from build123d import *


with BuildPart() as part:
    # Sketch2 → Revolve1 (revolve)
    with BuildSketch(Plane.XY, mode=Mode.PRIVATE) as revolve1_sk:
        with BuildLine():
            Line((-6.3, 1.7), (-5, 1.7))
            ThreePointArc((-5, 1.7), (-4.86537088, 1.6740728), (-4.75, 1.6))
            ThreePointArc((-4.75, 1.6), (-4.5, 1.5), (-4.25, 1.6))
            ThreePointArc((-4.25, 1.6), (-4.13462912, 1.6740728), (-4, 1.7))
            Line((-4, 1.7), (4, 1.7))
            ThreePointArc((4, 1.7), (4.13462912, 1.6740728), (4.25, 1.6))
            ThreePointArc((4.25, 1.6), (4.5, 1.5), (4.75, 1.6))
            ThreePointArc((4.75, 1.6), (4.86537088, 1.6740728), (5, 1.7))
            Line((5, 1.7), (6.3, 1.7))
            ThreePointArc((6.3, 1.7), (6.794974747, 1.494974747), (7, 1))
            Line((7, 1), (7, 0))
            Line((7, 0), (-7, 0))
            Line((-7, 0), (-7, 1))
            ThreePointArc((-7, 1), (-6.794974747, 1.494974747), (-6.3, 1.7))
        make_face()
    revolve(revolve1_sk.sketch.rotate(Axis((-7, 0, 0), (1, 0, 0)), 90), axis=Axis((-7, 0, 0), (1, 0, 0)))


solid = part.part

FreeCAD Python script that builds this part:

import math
import FreeCAD as App
import Part
import Sketcher

V = App.Vector

doc = App.newDocument("Part")
body = doc.addObject("PartDesign::Body", "Body")

sketch1 = body.newObject("Sketcher::SketchObject", "Sketch")
sketch1.AttachmentSupport = (doc.getObject("XY_Plane"), [""])
sketch1.MapMode = "FlatFace"
sketch1.addGeometry(Part.LineSegment(V(-5, 1.7, 0), V(-6.3, 1.7, 0)), False)
sketch1.addGeometry(Part.ArcOfCircle(Part.Circle(V(-6.3, 1, 0), V(0, 0, 1), 0.7), math.radians(90), math.radians(180)), False)
sketch1.addGeometry(Part.LineSegment(V(-7, 1, 0), V(-7, 0, 0)), False)
sketch1.addGeometry(Part.LineSegment(V(-7, 0, 0), V(7, 0, 0)), False)
sketch1.addGeometry(Part.LineSegment(V(7, 0, 0), V(7, 1, 0)), False)
sketch1.addGeometry(Part.ArcOfCircle(Part.Circle(V(6.3, 1, 0), V(0, 0, 1), 0.7), math.radians(0), math.radians(90)), False)
sketch1.addGeometry(Part.LineSegment(V(6.3, 1.7, 0), V(5, 1.7, 0)), False)
sketch1.addGeometry(Part.ArcOfCircle(Part.Circle(V(5, 1.3375, 0), V(0, 0, 1), 0.3625), math.radians(90), math.radians(133.602819)), False)
sketch1.addGeometry(Part.ArcOfCircle(Part.Circle(V(4.5, 1.8625, 0), V(0, 0, 1), 0.3625), math.radians(-133.602819), math.radians(-46.397181)), False)
sketch1.addGeometry(Part.ArcOfCircle(Part.Circle(V(4, 1.3375, 0), V(0, 0, 1), 0.3625), math.radians(46.397181), math.radians(90)), False)
sketch1.addGeometry(Part.LineSegment(V(4, 1.7, 0), V(-4, 1.7, 0)), False)
sketch1.addGeometry(Part.ArcOfCircle(Part.Circle(V(-4, 1.3375, 0), V(0, 0, 1), 0.3625), math.radians(90), math.radians(133.602819)), False)
sketch1.addGeometry(Part.ArcOfCircle(Part.Circle(V(-4.5, 1.8625, 0), V(0, 0, 1), 0.3625), math.radians(-133.602819), math.radians(-46.397181)), False)
sketch1.addGeometry(Part.ArcOfCircle(Part.Circle(V(-5, 1.3375, 0), V(0, 0, 1), 0.3625), math.radians(46.397181), math.radians(90)), False)
sketch1.addConstraint(Sketcher.Constraint("Tangent", 0, 2, 1, 1))
sketch1.addConstraint(Sketcher.Constraint("Tangent", 1, 2, 2, 1))
sketch1.addConstraint(Sketcher.Constraint("Coincident", 2, 2, 3, 1))
sketch1.addConstraint(Sketcher.Constraint("Coincident", 3, 2, 4, 1))
sketch1.addConstraint(Sketcher.Constraint("Tangent", 4, 2, 5, 1))
sketch1.addConstraint(Sketcher.Constraint("Tangent", 5, 2, 6, 1))
sketch1.addConstraint(Sketcher.Constraint("Tangent", 6, 2, 7, 1))
sketch1.addConstraint(Sketcher.Constraint("Tangent", 7, 2, 8, 2))
sketch1.addConstraint(Sketcher.Constraint("Tangent", 8, 1, 9, 1))
sketch1.addConstraint(Sketcher.Constraint("Tangent", 9, 2, 10, 1))
sketch1.addConstraint(Sketcher.Constraint("Tangent", 10, 2, 11, 1))
sketch1.addConstraint(Sketcher.Constraint("Tangent", 11, 2, 12, 2))
sketch1.addConstraint(Sketcher.Constraint("Tangent", 12, 1, 13, 1))
sketch1.addConstraint(Sketcher.Constraint("Tangent", 13, 2, 0, 1))
sketch1.addConstraint(Sketcher.Constraint("Horizontal", 0))
sketch1.addConstraint(Sketcher.Constraint("Vertical", 2))
sketch1.addConstraint(Sketcher.Constraint("Horizontal", 3))
sketch1.addConstraint(Sketcher.Constraint("Vertical", 4))
sketch1.addConstraint(Sketcher.Constraint("Horizontal", 6))
sketch1.addConstraint(Sketcher.Constraint("Horizontal", 10))
sketch1.addConstraint(Sketcher.Constraint("Equal", 1, 5))
sketch1.addConstraint(Sketcher.Constraint("Equal", 7, 8))
sketch1.addConstraint(Sketcher.Constraint("Equal", 8, 9))
sketch1.addConstraint(Sketcher.Constraint("Equal", 9, 11))
sketch1.addConstraint(Sketcher.Constraint("Equal", 11, 12))
sketch1.addConstraint(Sketcher.Constraint("Equal", 12, 13))
sketch1.addConstraint(Sketcher.Constraint("Symmetric", 2, 2, 3, 2, -1, 1))
sketch1.addConstraint(Sketcher.Constraint("Symmetric", 8, 3, 12, 3, -2))
sketch1.addConstraint(Sketcher.Constraint("Horizontal", 1, 3, 5, 3))
sketch1.addConstraint(Sketcher.Constraint("Horizontal", 7, 3, 9, 3))
sketch1.addConstraint(Sketcher.Constraint("Radius", 1, 0.7))
sketch1.addConstraint(Sketcher.Constraint("DistanceX", 3, 1, 3, 2, 14.0))
sketch1.addConstraint(Sketcher.Constraint("DistanceX", 10, 2, 10, 1, 8.0))
sketch1.addConstraint(Sketcher.Constraint("DistanceY", 2, 2, 2, 1, 1.0))
sketch1.addConstraint(Sketcher.Constraint("DistanceX", 0, 2, 0, 1, 1.3))
sketch1.addConstraint(Sketcher.Constraint("DistanceY", -1, 1, 7, 2, 1.6))
revolution = body.newObject("PartDesign::Revolution", "Revolution")
revolution.Profile = sketch1
revolution.ReferenceAxis = (sketch1, ["H_Axis"])
revolution.Angle = 360

doc.recompute()
